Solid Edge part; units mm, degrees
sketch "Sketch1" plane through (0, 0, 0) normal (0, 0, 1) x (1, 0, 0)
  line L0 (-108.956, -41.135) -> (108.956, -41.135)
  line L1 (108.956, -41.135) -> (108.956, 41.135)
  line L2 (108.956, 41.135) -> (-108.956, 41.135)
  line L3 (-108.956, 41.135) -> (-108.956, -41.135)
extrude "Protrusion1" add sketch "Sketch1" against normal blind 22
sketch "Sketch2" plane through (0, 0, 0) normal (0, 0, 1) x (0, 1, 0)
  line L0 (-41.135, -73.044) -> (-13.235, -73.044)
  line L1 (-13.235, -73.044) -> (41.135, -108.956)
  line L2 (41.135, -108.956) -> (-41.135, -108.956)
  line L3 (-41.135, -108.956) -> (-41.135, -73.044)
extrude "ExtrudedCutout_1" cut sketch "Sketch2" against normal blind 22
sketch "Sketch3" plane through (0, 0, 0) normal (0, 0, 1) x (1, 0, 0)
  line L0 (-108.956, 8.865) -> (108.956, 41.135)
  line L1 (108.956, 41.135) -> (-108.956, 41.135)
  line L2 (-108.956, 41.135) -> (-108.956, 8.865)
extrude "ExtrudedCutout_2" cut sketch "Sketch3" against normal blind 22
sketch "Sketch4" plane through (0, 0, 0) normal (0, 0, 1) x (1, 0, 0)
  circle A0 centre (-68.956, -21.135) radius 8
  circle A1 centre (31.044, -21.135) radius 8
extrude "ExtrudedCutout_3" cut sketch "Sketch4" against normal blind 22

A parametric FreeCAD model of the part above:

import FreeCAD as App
import Part
import Sketcher
from FreeCAD import Vector
Q = App.Units.Quantity


def add_polygon(sketch, points):
    """Adds a closed chain of lines whose ends are joined by coincident constraints."""
    first, n = sketch.GeometryCount, len(points)
    for a, b in zip(points, points[1:] + points[:1]):
        sketch.addGeometry(Part.LineSegment(App.Vector(*a, 0), App.Vector(*b, 0)), False)
    for i in range(n):
        sketch.addConstraint(Sketcher.Constraint("Coincident", first + i, 2, first + (i + 1) % n, 1))

doc = App.newDocument("Part")
body = doc.addObject("PartDesign::Body", "Body")

sketch1 = body.newObject("Sketcher::SketchObject", "Sketch")
sketch1.AttachmentSupport = (doc.getObject("XY_Plane"), [""])
sketch1.MapMode = "FlatFace"
add_polygon(sketch1, [(-109, 41), (-109, -41), (109, -41), (109, 41)])
sketch1.addConstraint([
    Sketcher.Constraint("Vertical", 0),
    Sketcher.Constraint("Horizontal", 1),
    Sketcher.Constraint("Vertical", 2),
    Sketcher.Constraint("Horizontal", 3),
    Sketcher.Constraint("Symmetric", 0, 2, 2, 2, -1, 1),
    Sketcher.Constraint("DistanceY", 0, 2, 0, 1, Q("82.27 mm")),
    Sketcher.Constraint("DistanceX", 1, 1, 1, 2, Q("217.912 mm")),
])
pad1 = body.newObject("PartDesign::Pad", "Pad")
pad1.Profile = sketch1
pad1.Length = 22
pad1.Reversed = True

sketch2 = body.newObject("Sketcher::SketchObject", "Sketch001")
sketch2.AttachmentSupport = (doc.getObject("XY_Plane"), [""])
sketch2.MapMode = "FlatFace"
add_polygon(sketch2, [(73, -13), (73, -41), (109, -41), (109, 41)])
sketch2.addConstraint([
    Sketcher.Constraint("Vertical", 0),
    Sketcher.Constraint("Horizontal", 1),
    Sketcher.Constraint("Vertical", 2),
    Sketcher.Constraint("DistanceY", 0, 2, 0, 1, Q("27.9 mm")),
    Sketcher.Constraint("DistanceY", 2, 1, 2, 2, Q("82.27 mm")),
    Sketcher.Constraint("DistanceX", 1, 1, 1, 2, Q("35.912 mm")),
    Sketcher.Constraint("DistanceX", -1, 1, 0, 2, Q("73.044 mm")),
    Sketcher.Constraint("DistanceY", 0, 2, -1, 1, Q("41.135 mm")),
])
pocket1 = body.newObject("PartDesign::Pocket", "Pocket")
pocket1.Profile = sketch2
pocket1.Length = 22

sketch3 = body.newObject("Sketcher::SketchObject", "Sketch002")
sketch3.AttachmentSupport = (doc.getObject("XY_Plane"), [""])
sketch3.MapMode = "FlatFace"
add_polygon(sketch3, [(-109, 41), (-109, 9), (109, 41)])
sketch3.addConstraint([
    Sketcher.Constraint("Vertical", 0),
    Sketcher.Constraint("Horizontal", 2),
    Sketcher.Constraint("DistanceY", 0, 2, 0, 1, Q("32.27 mm")),
    Sketcher.Constraint("DistanceX", 2, 2, 2, 1, Q("217.912 mm")),
    Sketcher.Constraint("DistanceX", 0, 2, -1, 1, Q("108.956 mm")),
    Sketcher.Constraint("DistanceY", -1, 1, 0, 2, Q("8.865 mm")),
])
pocket2 = body.newObject("PartDesign::Pocket", "Pocket001")
pocket2.Profile = sketch3
pocket2.Length = 22

sketch4 = body.newObject("Sketcher::SketchObject", "Sketch003")
sketch4.AttachmentSupport = (doc.getObject("XY_Plane"), [""])
sketch4.MapMode = "FlatFace"
sketch4.addGeometry([
    Part.Circle(Vector(-69, -21, 0), Vector(0, 0, 1), 8),
    Part.Circle(Vector(31, -21, 0), Vector(0, 0, 1), 8),
], False)
sketch4.addConstraint([
    Sketcher.Constraint("Equal", 0, 1),
    Sketcher.Constraint("Horizontal", 0, 3, 1, 3),
    Sketcher.Constraint("Diameter", 0, Q("16 mm")),
    Sketcher.Constraint("DistanceX", 0, 3, 1, 3, Q("100 mm")),
    Sketcher.Constraint("DistanceX", 0, 3, -1, 1, Q("68.956 mm")),
    Sketcher.Constraint("DistanceY", 0, 3, -1, 1, Q("21.135 mm")),
])
pocket3 = body.newObject("PartDesign::Pocket", "Pocket002")
pocket3.Profile = sketch4
pocket3.Length = 22

doc.recompute()
